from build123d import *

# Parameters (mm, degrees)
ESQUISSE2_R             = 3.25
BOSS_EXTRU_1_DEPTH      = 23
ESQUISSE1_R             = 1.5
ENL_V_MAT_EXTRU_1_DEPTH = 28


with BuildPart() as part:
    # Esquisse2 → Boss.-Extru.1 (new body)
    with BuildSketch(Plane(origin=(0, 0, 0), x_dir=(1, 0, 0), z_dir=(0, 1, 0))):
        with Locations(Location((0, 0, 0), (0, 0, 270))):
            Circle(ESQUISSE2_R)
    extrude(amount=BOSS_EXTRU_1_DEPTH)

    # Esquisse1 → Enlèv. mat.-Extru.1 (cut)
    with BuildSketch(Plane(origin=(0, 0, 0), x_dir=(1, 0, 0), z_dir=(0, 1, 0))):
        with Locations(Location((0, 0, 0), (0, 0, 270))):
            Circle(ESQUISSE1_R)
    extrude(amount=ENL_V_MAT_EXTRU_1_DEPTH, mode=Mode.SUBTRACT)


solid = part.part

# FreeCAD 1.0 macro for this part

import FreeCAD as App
import Part
import Sketcher

V = App.Vector

doc = App.newDocument("Part")
body = doc.addObject("PartDesign::Body", "Body")

# Sketch on XZ plane
sketch1 = doc.addObject("Sketcher::SketchObject", "Sketch")
body.addObject(sketch1)
sketch1.AttachmentSupport = (doc.XZ_Plane, [""])
sketch1.MapMode = "FlatFace"
sketch1.addGeometry(Part.Circle(V(0, 0, 0), V(0, 0, 1), 3.2), False)
sketch1.addConstraint([
    Sketcher.Constraint("Coincident", 0, 3, -1, 1),
    Sketcher.Constraint("Diameter", 0, 6.5),
])
pad1 = doc.addObject("PartDesign::Pad", "Pad")
body.addObject(pad1)
pad1.Profile = sketch1
pad1.Length = 23
pad1.Reversed = True

# Sketch on XZ plane
sketch2 = doc.addObject("Sketcher::SketchObject", "Sketch001")
body.addObject(sketch2)
sketch2.AttachmentSupport = (doc.XZ_Plane, [""])
sketch2.MapMode = "FlatFace"
sketch2.addGeometry(Part.Circle(V(0, 0, 0), V(0, 0, 1), 1.5), False)
sketch2.addConstraint([
    Sketcher.Constraint("Coincident", 0, 3, -1, 1),
    Sketcher.Constraint("Diameter", 0, 3.0),
])
pocket1 = doc.addObject("PartDesign::Pocket", "Pocket")
body.addObject(pocket1)
pocket1.Profile = sketch2
pocket1.Length = 28

doc.recompute()
